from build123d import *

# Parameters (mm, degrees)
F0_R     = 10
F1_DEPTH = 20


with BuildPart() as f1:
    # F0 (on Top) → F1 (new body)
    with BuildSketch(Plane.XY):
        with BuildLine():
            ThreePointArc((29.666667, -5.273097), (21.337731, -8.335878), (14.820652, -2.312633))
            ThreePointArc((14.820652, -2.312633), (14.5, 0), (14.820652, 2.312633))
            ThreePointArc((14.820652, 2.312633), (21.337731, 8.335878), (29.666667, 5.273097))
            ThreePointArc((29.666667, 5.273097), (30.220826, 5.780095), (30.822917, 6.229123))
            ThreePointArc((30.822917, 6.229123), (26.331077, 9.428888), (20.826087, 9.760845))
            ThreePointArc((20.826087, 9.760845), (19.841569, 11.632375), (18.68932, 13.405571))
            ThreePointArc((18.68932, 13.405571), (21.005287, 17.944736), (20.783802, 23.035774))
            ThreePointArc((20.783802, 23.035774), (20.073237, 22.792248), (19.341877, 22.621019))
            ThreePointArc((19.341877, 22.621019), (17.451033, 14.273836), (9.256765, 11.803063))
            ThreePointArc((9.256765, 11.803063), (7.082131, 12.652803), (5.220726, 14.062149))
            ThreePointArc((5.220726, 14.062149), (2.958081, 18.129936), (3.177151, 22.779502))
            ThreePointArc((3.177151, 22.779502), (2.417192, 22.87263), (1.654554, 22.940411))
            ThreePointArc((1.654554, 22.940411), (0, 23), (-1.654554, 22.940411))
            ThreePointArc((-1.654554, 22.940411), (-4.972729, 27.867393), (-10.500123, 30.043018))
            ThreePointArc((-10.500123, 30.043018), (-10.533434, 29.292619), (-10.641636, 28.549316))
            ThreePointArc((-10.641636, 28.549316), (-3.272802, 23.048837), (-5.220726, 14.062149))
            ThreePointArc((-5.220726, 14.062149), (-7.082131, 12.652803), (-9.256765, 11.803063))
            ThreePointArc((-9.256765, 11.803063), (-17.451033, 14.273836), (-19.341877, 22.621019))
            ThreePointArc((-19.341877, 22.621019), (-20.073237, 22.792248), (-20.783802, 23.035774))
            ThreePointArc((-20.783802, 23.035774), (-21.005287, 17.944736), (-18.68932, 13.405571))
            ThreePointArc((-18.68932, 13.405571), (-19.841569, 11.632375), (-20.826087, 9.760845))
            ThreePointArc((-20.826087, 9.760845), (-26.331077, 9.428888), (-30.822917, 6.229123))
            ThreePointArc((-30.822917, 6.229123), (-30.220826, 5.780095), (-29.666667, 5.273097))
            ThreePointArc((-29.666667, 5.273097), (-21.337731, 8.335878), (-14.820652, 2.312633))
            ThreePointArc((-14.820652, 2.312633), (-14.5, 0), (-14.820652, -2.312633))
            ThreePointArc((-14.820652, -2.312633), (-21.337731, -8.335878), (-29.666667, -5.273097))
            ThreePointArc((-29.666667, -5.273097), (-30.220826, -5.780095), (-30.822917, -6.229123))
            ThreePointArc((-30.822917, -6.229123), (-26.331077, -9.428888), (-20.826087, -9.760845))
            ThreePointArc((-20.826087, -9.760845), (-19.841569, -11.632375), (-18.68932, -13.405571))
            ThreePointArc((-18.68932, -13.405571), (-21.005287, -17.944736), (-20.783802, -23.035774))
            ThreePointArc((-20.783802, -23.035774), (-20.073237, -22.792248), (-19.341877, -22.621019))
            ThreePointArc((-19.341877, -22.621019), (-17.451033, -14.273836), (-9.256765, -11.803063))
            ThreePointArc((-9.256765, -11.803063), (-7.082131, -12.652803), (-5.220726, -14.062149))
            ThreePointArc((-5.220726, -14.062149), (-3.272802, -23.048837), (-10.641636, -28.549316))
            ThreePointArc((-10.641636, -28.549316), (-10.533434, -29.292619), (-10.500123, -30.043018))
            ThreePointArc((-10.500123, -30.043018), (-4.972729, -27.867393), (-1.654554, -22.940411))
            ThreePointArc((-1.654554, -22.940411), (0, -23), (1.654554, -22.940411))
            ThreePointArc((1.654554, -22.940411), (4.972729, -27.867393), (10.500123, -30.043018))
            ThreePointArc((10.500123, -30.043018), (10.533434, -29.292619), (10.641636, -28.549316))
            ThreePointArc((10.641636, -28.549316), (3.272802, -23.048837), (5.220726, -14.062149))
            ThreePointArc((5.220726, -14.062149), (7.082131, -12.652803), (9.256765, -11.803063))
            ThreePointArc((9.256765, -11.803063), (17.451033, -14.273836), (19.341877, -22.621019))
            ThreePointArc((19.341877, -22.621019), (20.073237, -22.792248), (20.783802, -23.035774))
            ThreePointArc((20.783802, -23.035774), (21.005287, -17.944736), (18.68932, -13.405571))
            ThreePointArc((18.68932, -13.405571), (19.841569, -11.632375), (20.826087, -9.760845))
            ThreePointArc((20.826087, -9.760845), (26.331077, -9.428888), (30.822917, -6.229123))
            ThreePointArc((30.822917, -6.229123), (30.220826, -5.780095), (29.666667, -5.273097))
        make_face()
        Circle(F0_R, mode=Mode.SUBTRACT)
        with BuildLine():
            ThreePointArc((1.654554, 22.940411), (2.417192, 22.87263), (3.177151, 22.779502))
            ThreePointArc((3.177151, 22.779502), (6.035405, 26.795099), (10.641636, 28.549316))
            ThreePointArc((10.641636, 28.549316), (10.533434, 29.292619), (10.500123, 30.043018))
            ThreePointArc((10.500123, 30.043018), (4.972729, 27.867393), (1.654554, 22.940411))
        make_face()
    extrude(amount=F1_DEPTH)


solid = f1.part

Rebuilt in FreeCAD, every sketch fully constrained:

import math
import FreeCAD as App
import Part
import Sketcher

V = App.Vector
Q = App.Units.Quantity

doc = App.newDocument("Part")
body = doc.addObject("PartDesign::Body", "Body")

sketch1 = body.newObject("Sketcher::SketchObject", "Sketch")
sketch1.AttachmentSupport = (doc.getObject("XY_Plane"), [""])
sketch1.MapMode = "FlatFace"
sketch1.addGeometry([
    Part.ArcOfCircle(Part.Circle(V(23, 0, 0), V(0, 0, 1), 8.5), math.radians(-164.212251), math.radians(-38.342747)),
    Part.ArcOfCircle(Part.Circle(V(23.000008, 0, 0), V(0, 0, 1), 8.500008), math.radians(164.212268), math.radians(195.787732)),
    Part.ArcOfCircle(Part.Circle(V(23, 0, 0), V(0, 0, 1), 8.5), math.radians(38.342747), math.radians(164.212251)),
    Part.ArcOfCircle(Part.Circle(V(34.999933, 0.000083, 0), V(0, 0, 1), 7.499893), math.radians(123.844672), math.radians(135.325479)),
    Part.ArcOfCircle(Part.Circle(V(23.000001, 0.000001, 0), V(0, 0, 1), 9.999999), math.radians(38.529116), math.radians(102.555865)),
    Part.ArcOfCircle(Part.Circle(V(0.000013, 0.00001, 0), V(0, 0, 1), 22.999984), math.radians(25.111705), math.radians(35.651308)),
    Part.ArcOfCircle(Part.Circle(V(11.233726, 20.069962, 0), V(0, 0, 1), 10), math.radians(-41.792827), math.radians(17.252376)),
    Part.ArcOfCircle(Part.Circle(V(18.000018, 29.999941, 0), V(0, 0, 1), 7.499938), math.radians(-79.693373), math.radians(-68.211945)),
    Part.ArcOfCircle(Part.Circle(V(11.233725, 20.069964, 0), V(0, 0, 1), 8.500001), math.radians(-103.44922), math.radians(17.465059)),
    Part.ArcOfCircle(Part.Circle(V(11.233728, 20.069963, 0), V(0, 0, 1), 8.500001), math.radians(-135.024725), math.radians(-103.449239)),
    Part.ArcOfCircle(Part.Circle(V(11.233724, 20.069963, 0), V(0, 0, 1), 8.499998), math.radians(161.411482), math.radians(224.97529)),
    Part.ArcOfCircle(Part.Circle(V(11.233727, 20.069962, 0), V(0, 0, 1), 8.500001), math.radians(93.994329), math.radians(161.41148)),
    Part.ArcOfCircle(Part.Circle(V(18.000125, 30.000012, 0), V(0, 0, 1), 7.500126), math.radians(179.671463), math.radians(191.152609)),
    Part.ArcOfCircle(Part.Circle(V(11.233727, 20.069962, 0), V(0, 0, 1), 10.000001), math.radians(94.207018), math.radians(163.318879)),
    Part.ArcOfCircle(Part.Circle(V(0, -0.000049, 0), V(0, 0, 1), 23.000049), math.radians(85.874752), math.radians(94.125248)),
    Part.ArcOfCircle(Part.Circle(V(-11.233727, 20.069962, 0), V(0, 0, 1), 10.000001), math.radians(16.681121), math.radians(85.792982)),
    Part.ArcOfCircle(Part.Circle(V(-18.000125, 30.000012, 0), V(0, 0, 1), 7.500126), math.radians(-11.152609), math.radians(0.328537)),
    Part.ArcOfCircle(Part.Circle(V(-11.233726, 20.069963, 0), V(0, 0, 1), 8.5), math.radians(-44.975284), math.radians(86.005678)),
    Part.ArcOfCircle(Part.Circle(V(-11.233728, 20.069963, 0), V(0, 0, 1), 8.500001), math.radians(-76.550761), math.radians(-44.975275)),
    Part.ArcOfCircle(Part.Circle(V(-11.233725, 20.069964, 0), V(0, 0, 1), 8.500001), math.radians(162.534941), math.radians(283.44922)),
    Part.ArcOfCircle(Part.Circle(V(-18.000018, 29.999941, 0), V(0, 0, 1), 7.499938), math.radians(-111.788055), math.radians(-100.306627)),
    Part.ArcOfCircle(Part.Circle(V(-11.233726, 20.069962, 0), V(0, 0, 1), 10), math.radians(162.747624), math.radians(221.792827)),
    Part.ArcOfCircle(Part.Circle(V(-0.000013, 0.00001, 0), V(0, 0, 1), 22.999984), math.radians(144.348692), math.radians(154.888295)),
    Part.ArcOfCircle(Part.Circle(V(-23.000001, 0.000001, 0), V(0, 0, 1), 9.999999), math.radians(77.444135), math.radians(141.470884)),
    Part.ArcOfCircle(Part.Circle(V(-34.999933, 0.000083, 0), V(0, 0, 1), 7.499893), math.radians(44.674521), math.radians(56.155328)),
    Part.ArcOfCircle(Part.Circle(V(-23, 0, 0), V(0, 0, 1), 8.5), math.radians(15.787749), math.radians(141.657253)),
    Part.ArcOfCircle(Part.Circle(V(-23.000008, 0, 0), V(0, 0, 1), 8.500008), math.radians(-15.787732), math.radians(15.787732)),
    Part.ArcOfCircle(Part.Circle(V(-23, 0, 0), V(0, 0, 1), 8.5), math.radians(-141.657253), math.radians(-15.787749)),
    Part.ArcOfCircle(Part.Circle(V(-34.999933, -0.000083, 0), V(0, 0, 1), 7.499893), math.radians(-56.155328), math.radians(-44.674521)),
    Part.ArcOfCircle(Part.Circle(V(-23.000001, -0.000001, 0), V(0, 0, 1), 9.999999), math.radians(-141.470884), math.radians(-77.444135)),
    Part.ArcOfCircle(Part.Circle(V(-0.000013, -0.00001, 0), V(0, 0, 1), 22.999984), math.radians(-154.888295), math.radians(-144.348692)),
    Part.ArcOfCircle(Part.Circle(V(-11.233726, -20.069962, 0), V(0, 0, 1), 10), math.radians(138.207173), math.radians(197.252376)),
    Part.ArcOfCircle(Part.Circle(V(-18.000018, -29.999941, 0), V(0, 0, 1), 7.499938), math.radians(100.306627), math.radians(111.788055)),
    Part.ArcOfCircle(Part.Circle(V(-11.233725, -20.069964, 0), V(0, 0, 1), 8.500001), math.radians(76.55078), math.radians(197.465059)),
    Part.ArcOfCircle(Part.Circle(V(-11.233728, -20.069963, 0), V(0, 0, 1), 8.500001), math.radians(44.975275), math.radians(76.550761)),
    Part.ArcOfCircle(Part.Circle(V(-11.233726, -20.069963, 0), V(0, 0, 1), 8.5), math.radians(-86.005678), math.radians(44.975284)),
    Part.ArcOfCircle(Part.Circle(V(-18.000125, -30.000012, 0), V(0, 0, 1), 7.500126), math.radians(-0.328537), math.radians(11.152609)),
    Part.ArcOfCircle(Part.Circle(V(-11.233727, -20.069962, 0), V(0, 0, 1), 10.000001), math.radians(-85.792982), math.radians(-16.681121)),
    Part.ArcOfCircle(Part.Circle(V(0, 0.000049, 0), V(0, 0, 1), 23.000049), math.radians(-94.125248), math.radians(-85.874752)),
    Part.ArcOfCircle(Part.Circle(V(11.233727, -20.069962, 0), V(0, 0, 1), 10.000001), math.radians(-163.318879), math.radians(-94.207018)),
    Part.ArcOfCircle(Part.Circle(V(18.000125, -30.000012, 0), V(0, 0, 1), 7.500126), math.radians(168.847391), math.radians(180.328537)),
    Part.ArcOfCircle(Part.Circle(V(11.233726, -20.069963, 0), V(0, 0, 1), 8.5), math.radians(135.024716), math.radians(266.005678)),
    Part.ArcOfCircle(Part.Circle(V(11.233728, -20.069963, 0), V(0, 0, 1), 8.500001), math.radians(103.449239), math.radians(135.024725)),
    Part.ArcOfCircle(Part.Circle(V(11.233725, -20.069964, 0), V(0, 0, 1), 8.500001), math.radians(-17.465059), math.radians(103.44922)),
    Part.ArcOfCircle(Part.Circle(V(18.000018, -29.999941, 0), V(0, 0, 1), 7.499938), math.radians(68.211945), math.radians(79.693373)),
    Part.ArcOfCircle(Part.Circle(V(11.233726, -20.069962, 0), V(0, 0, 1), 10), math.radians(-17.252376), math.radians(41.792827)),
    Part.ArcOfCircle(Part.Circle(V(0.000013, -0.00001, 0), V(0, 0, 1), 22.999984), math.radians(-35.651308), math.radians(-25.111705)),
    Part.ArcOfCircle(Part.Circle(V(23.000001, -0.000001, 0), V(0, 0, 1), 9.999999), math.radians(-102.555865), math.radians(-38.529116)),
    Part.ArcOfCircle(Part.Circle(V(34.999933, -0.000083, 0), V(0, 0, 1), 7.499893), math.radians(-135.325479), math.radians(-123.844672)),
    Part.Circle(V(0, 0, 0), V(0, 0, 1), 10),
], False)
sketch1.addConstraint([
    Sketcher.Constraint("Tangent", 0, 1, 1, 2),
    Sketcher.Constraint("Tangent", 1, 1, 2, 2),
    Sketcher.Constraint("Coincident", 2, 1, 3, 2),
    Sketcher.Constraint("Coincident", 3, 1, 4, 1),
    Sketcher.Constraint("Coincident", 4, 2, 5, 1),
    Sketcher.Constraint("Coincident", 5, 2, 6, 1),
    Sketcher.Constraint("Coincident", 6, 2, 7, 2),
    Sketcher.Constraint("Coincident", 7, 1, 8, 2),
    Sketcher.Constraint("Tangent", 8, 1, 9, 2),
    Sketcher.Constraint("Tangent", 9, 1, 10, 2),
    Sketcher.Constraint("Tangent", 10, 1, 11, 2),
    Sketcher.Constraint("Coincident", 11, 1, 12, 2),
    Sketcher.Constraint("Coincident", 12, 1, 13, 1),
    Sketcher.Constraint("Coincident", 13, 2, 14, 1),
    Sketcher.Constraint("Coincident", 14, 2, 15, 1),
    Sketcher.Constraint("Coincident", 15, 2, 16, 2),
    Sketcher.Constraint("Coincident", 16, 1, 17, 2),
    Sketcher.Constraint("Tangent", 17, 1, 18, 2),
    Sketcher.Constraint("Tangent", 18, 1, 19, 2),
    Sketcher.Constraint("Coincident", 19, 1, 20, 2),
    Sketcher.Constraint("Coincident", 20, 1, 21, 1),
    Sketcher.Constraint("Coincident", 21, 2, 22, 1),
    Sketcher.Constraint("Coincident", 22, 2, 23, 1),
    Sketcher.Constraint("Coincident", 23, 2, 24, 2),
    Sketcher.Constraint("Coincident", 24, 1, 25, 2),
    Sketcher.Constraint("Tangent", 25, 1, 26, 2),
    Sketcher.Constraint("Tangent", 26, 1, 27, 2),
    Sketcher.Constraint("Coincident", 27, 1, 28, 2),
    Sketcher.Constraint("Coincident", 28, 1, 29, 1),
    Sketcher.Constraint("Coincident", 29, 2, 30, 1),
    Sketcher.Constraint("Coincident", 30, 2, 31, 1),
    Sketcher.Constraint("Coincident", 31, 2, 32, 2),
    Sketcher.Constraint("Coincident", 32, 1, 33, 2),
    Sketcher.Constraint("Tangent", 33, 1, 34, 2),
    Sketcher.Constraint("Tangent", 34, 1, 35, 2),
    Sketcher.Constraint("Coincident", 35, 1, 36, 2),
    Sketcher.Constraint("Coincident", 36, 1, 37, 1),
    Sketcher.Constraint("Coincident", 37, 2, 38, 1),
    Sketcher.Constraint("Coincident", 38, 2, 39, 1),
    Sketcher.Constraint("Coincident", 39, 2, 40, 2),
    Sketcher.Constraint("Coincident", 40, 1, 41, 2),
    Sketcher.Constraint("Tangent", 41, 1, 42, 2),
    Sketcher.Constraint("Tangent", 42, 1, 43, 2),
    Sketcher.Constraint("Coincident", 43, 1, 44, 2),
    Sketcher.Constraint("Coincident", 44, 1, 45, 1),
    Sketcher.Constraint("Coincident", 45, 2, 46, 1),
    Sketcher.Constraint("Coincident", 46, 2, 47, 1),
    Sketcher.Constraint("Coincident", 47, 2, 48, 2),
    Sketcher.Constraint("Coincident", 48, 1, 0, 2),
    Sketcher.Constraint("Coincident", 49, 3, -1, 1),
    Sketcher.Constraint("Coincident", 2, 3, 0, 3),
    Sketcher.Constraint("Coincident", 4, 3, 0, 3),
    Sketcher.Constraint("Coincident", 8, 3, 6, 3),
    Sketcher.Constraint("Coincident", 10, 3, 6, 3),
    Sketcher.Constraint("Coincident", 13, 3, 6, 3),
    Sketcher.Constraint("Coincident", 17, 3, 15, 3),
    Sketcher.Constraint("Coincident", 19, 3, 15, 3),
    Sketcher.Constraint("Coincident", 21, 3, 15, 3),
    Sketcher.Constraint("Coincident", 25, 3, 23, 3),
    Sketcher.Constraint("Coincident", 27, 3, 23, 3),
    Sketcher.Constraint("Coincident", 29, 3, 23, 3),
    Sketcher.Constraint("Coincident", 33, 3, 31, 3),
    Sketcher.Constraint("Coincident", 35, 3, 31, 3),
    Sketcher.Constraint("Coincident", 37, 3, 31, 3),
    Sketcher.Constraint("Coincident", 41, 3, 39, 3),
    Sketcher.Constraint("Coincident", 43, 3, 39, 3),
    Sketcher.Constraint("Coincident", 45, 3, 39, 3),
    Sketcher.Constraint("Coincident", 47, 3, 0, 3),
    Sketcher.Constraint("Equal", 4, 6),
    Sketcher.Constraint("Equal", 2, 8),
    Sketcher.Constraint("Equal", 9, 11),
    Sketcher.Constraint("Equal", 6, 13),
    Sketcher.Constraint("Equal", 13, 15),
    Sketcher.Constraint("Equal", 12, 16),
    Sketcher.Constraint("Equal", 11, 17),
    Sketcher.Constraint("Equal", 7, 20),
    Sketcher.Constraint("Equal", 15, 21),
    Sketcher.Constraint("Equal", 5, 22),
    Sketcher.Constraint("Equal", 21, 23),
    Sketcher.Constraint("Equal", 3, 24),
    Sketcher.Constraint("Equal", 19, 25),
    Sketcher.Constraint("Equal", 24, 28),
    Sketcher.Constraint("Equal", 23, 29),
    Sketcher.Constraint("Equal", 22, 30),
    Sketcher.Constraint("Equal", 29, 31),
    Sketcher.Constraint("Equal", 20, 32),
    Sketcher.Constraint("Equal", 27, 33),
    Sketcher.Constraint("Equal", 16, 36),
    Sketcher.Constraint("Equal", 31, 37),
    Sketcher.Constraint("Equal", 14, 38),
    Sketcher.Constraint("Equal", 37, 39),
    Sketcher.Constraint("Equal", 36, 40),
    Sketcher.Constraint("Equal", 35, 41),
    Sketcher.Constraint("Equal", 32, 44),
    Sketcher.Constraint("Equal", 39, 45),
    Sketcher.Constraint("Equal", 30, 46),
    Sketcher.Constraint("Equal", 45, 47),
    Sketcher.Constraint("Equal", 28, 48),
    Sketcher.Constraint("Equal", 47, 49),
    Sketcher.Constraint("Symmetric", 0, 3, 23, 3, -1, 1),
    Sketcher.Constraint("Symmetric", 3, 3, 28, 3, -1, 1),
    Sketcher.Constraint("Symmetric", 5, 3, 30, 3, -1, 1),
    Sketcher.Constraint("Symmetric", 6, 3, 31, 3, -1, 1),
    Sketcher.Constraint("Symmetric", 7, 3, 32, 3, -1, 1),
    Sketcher.Constraint("Symmetric", 12, 3, 36, 3, -1, 1),
    Sketcher.Constraint("Symmetric", 14, 3, 38, 3, -1, 1),
    Sketcher.Constraint("Symmetric", 15, 3, 39, 3, -1, 1),
    Sketcher.Constraint("Symmetric", 16, 3, 40, 3, -1, 1),
    Sketcher.Constraint("Symmetric", 20, 3, 44, 3, -1, 1),
    Sketcher.Constraint("Symmetric", 22, 3, 46, 3, -1, 1),
    Sketcher.Constraint("Symmetric", 24, 3, 48, 3, -1, 1),
    Sketcher.Constraint("Symmetric", 6, 3, 15, 3, -2),
    Sketcher.Constraint("Symmetric", 12, 3, 16, 3, -2),
    Sketcher.Constraint("Symmetric", 7, 3, 20, 3, -2),
    Sketcher.Constraint("Symmetric", 5, 3, 22, 3, -2),
    Sketcher.Constraint("Symmetric", 3, 3, 24, 3, -2),
    Sketcher.Constraint("Symmetric", 1, 1, 25, 1, -2),
    Sketcher.Constraint("PointOnObject", 14, 3, -2),
    Sketcher.Constraint("Horizontal", 9, 1, 17, 1),
    Sketcher.Constraint("Horizontal", 8, 1, 18, 1),
    Sketcher.Constraint("Horizontal", 0, 1, 26, 1),
    Sketcher.Constraint("Horizontal", 34, 1, 41, 1),
    Sketcher.Constraint("Horizontal", 33, 1, 42, 1),
    Sketcher.Constraint("Vertical", 0, 1, 1, 1),
    Sketcher.Constraint("Vertical", 18, 1, 33, 1),
    Sketcher.Constraint("Vertical", 17, 1, 34, 1),
    Sketcher.Constraint("Diameter", 49, Q("20 mm")),
    Sketcher.Constraint("Radius", 0, Q("8.5 mm")),
    Sketcher.Constraint("DistanceX", -1, 1, 0, 3, Q("23 mm")),
    Sketcher.Constraint("Radius", 7, Q("7.499938 mm")),
    Sketcher.Constraint("Radius", 14, Q("23.000049 mm")),
    Sketcher.Constraint("Radius", 3, Q("7.499893 mm")),
    Sketcher.Constraint("Radius", 5, Q("22.999984 mm")),
    Sketcher.Constraint("Radius", 12, Q("7.500126 mm")),
    Sketcher.Constraint("DistanceX", -1, 1, 6, 2, Q("20.783802 mm")),
    Sketcher.Constraint("DistanceY", -1, 1, 10, 1, Q("22.779502 mm")),
    Sketcher.Constraint("DistanceY", -1, 1, 7, 3, Q("29.999941 mm")),
    Sketcher.Constraint("DistanceY", -1, 1, 11, 3, Q("20.069962 mm")),
    Sketcher.Constraint("DistanceX", -1, 1, 0, 1, Q("14.820652 mm")),
    Sketcher.Constraint("DistanceX", -1, 1, 5, 2, Q("18.68932 mm")),
    Sketcher.Constraint("DistanceY", -1, 1, 5, 2, Q("13.405571 mm")),
    Sketcher.Constraint("DistanceY", -1, 1, 9, 1, Q("14.062149 mm")),
    Sketcher.Constraint("DistanceY", -1, 1, 13, 2, Q("22.940411 mm")),
    Sketcher.Constraint("DistanceX", -1, 1, 3, 3, Q("34.999933 mm")),
    Sketcher.Constraint("DistanceX", -1, 1, 12, 3, Q("18.000125 mm")),
    Sketcher.Constraint("DistanceY", -1, 1, 12, 3, Q("30.000012 mm")),
    Sketcher.Constraint("DistanceX", -1, 1, 2, 1, Q("29.666667 mm")),
    Sketcher.Constraint("DistanceX", -1, 1, 4, 2, Q("20.826087 mm")),
    Sketcher.Constraint("DistanceX", -1, 1, 8, 1, Q("9.256765 mm")),
])
pad1 = body.newObject("PartDesign::Pad", "Pad")
pad1.Profile = sketch1
pad1.Length = 20

doc.recompute()
